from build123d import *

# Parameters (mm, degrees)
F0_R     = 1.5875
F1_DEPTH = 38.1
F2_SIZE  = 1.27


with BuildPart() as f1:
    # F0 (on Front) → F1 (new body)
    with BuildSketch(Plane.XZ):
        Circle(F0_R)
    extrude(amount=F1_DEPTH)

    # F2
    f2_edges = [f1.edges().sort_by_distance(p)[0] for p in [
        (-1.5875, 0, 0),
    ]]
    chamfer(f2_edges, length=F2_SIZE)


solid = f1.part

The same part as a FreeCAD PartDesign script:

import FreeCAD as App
import Part
import Sketcher
Q = App.Units.Quantity


def edges_at(feature, points):
    """Names of the edges that pass closest to the given points."""
    edges = feature.Shape.Edges
    near = lambda p: min(range(len(edges)), key=lambda i: edges[i].distToShape(Part.Vertex(*p))[0])
    return sorted({f"Edge{near(p) + 1}" for p in points})

doc = App.newDocument("Part")
params = doc.addObject("Spreadsheet::Sheet", "Params")
for row, (alias, value) in enumerate([
    ("sketch1_diameter", "0.125 in"),
    ("pad1_length", "1.5 in"),
    ("chamfer_size", "0.05 in"),
], start=1):
    params.set(f"A{row}", alias)
    params.set(f"B{row}", "=" + value)
    params.setAlias(f"B{row}", alias)

body = doc.addObject("PartDesign::Body", "Body")

sketch1 = doc.addObject("Sketcher::SketchObject", "Sketch")
body.addObject(sketch1)
sketch1.AttachmentSupport = (doc.XZ_Plane, [""])
sketch1.MapMode = "FlatFace"
sketch1.addGeometry(Part.Circle(App.Vector(0, 0, 0), App.Vector(0, 0, 1), 1.5875), False)
sketch1.addConstraint(Sketcher.Constraint("Coincident", 0, 3, -1, 1))
sketch1.addConstraint(Sketcher.Constraint("Diameter", 0, Q("0.125 in")))
sketch1.setExpression("Constraints[1]", "Params.sketch1_diameter")
pad1 = doc.addObject("PartDesign::Pad", "Pad")
body.addObject(pad1)
pad1.Profile = sketch1
pad1.setExpression("Length", "Params.pad1_length")
doc.recompute()

chamfer = doc.addObject("PartDesign::Chamfer", "Chamfer")
body.addObject(chamfer)
chamfer.Base = (pad1, edges_at(pad1, [(-1.587, 0, 0)]))
chamfer.setExpression("Size", "Params.chamfer_size")

doc.recompute()
